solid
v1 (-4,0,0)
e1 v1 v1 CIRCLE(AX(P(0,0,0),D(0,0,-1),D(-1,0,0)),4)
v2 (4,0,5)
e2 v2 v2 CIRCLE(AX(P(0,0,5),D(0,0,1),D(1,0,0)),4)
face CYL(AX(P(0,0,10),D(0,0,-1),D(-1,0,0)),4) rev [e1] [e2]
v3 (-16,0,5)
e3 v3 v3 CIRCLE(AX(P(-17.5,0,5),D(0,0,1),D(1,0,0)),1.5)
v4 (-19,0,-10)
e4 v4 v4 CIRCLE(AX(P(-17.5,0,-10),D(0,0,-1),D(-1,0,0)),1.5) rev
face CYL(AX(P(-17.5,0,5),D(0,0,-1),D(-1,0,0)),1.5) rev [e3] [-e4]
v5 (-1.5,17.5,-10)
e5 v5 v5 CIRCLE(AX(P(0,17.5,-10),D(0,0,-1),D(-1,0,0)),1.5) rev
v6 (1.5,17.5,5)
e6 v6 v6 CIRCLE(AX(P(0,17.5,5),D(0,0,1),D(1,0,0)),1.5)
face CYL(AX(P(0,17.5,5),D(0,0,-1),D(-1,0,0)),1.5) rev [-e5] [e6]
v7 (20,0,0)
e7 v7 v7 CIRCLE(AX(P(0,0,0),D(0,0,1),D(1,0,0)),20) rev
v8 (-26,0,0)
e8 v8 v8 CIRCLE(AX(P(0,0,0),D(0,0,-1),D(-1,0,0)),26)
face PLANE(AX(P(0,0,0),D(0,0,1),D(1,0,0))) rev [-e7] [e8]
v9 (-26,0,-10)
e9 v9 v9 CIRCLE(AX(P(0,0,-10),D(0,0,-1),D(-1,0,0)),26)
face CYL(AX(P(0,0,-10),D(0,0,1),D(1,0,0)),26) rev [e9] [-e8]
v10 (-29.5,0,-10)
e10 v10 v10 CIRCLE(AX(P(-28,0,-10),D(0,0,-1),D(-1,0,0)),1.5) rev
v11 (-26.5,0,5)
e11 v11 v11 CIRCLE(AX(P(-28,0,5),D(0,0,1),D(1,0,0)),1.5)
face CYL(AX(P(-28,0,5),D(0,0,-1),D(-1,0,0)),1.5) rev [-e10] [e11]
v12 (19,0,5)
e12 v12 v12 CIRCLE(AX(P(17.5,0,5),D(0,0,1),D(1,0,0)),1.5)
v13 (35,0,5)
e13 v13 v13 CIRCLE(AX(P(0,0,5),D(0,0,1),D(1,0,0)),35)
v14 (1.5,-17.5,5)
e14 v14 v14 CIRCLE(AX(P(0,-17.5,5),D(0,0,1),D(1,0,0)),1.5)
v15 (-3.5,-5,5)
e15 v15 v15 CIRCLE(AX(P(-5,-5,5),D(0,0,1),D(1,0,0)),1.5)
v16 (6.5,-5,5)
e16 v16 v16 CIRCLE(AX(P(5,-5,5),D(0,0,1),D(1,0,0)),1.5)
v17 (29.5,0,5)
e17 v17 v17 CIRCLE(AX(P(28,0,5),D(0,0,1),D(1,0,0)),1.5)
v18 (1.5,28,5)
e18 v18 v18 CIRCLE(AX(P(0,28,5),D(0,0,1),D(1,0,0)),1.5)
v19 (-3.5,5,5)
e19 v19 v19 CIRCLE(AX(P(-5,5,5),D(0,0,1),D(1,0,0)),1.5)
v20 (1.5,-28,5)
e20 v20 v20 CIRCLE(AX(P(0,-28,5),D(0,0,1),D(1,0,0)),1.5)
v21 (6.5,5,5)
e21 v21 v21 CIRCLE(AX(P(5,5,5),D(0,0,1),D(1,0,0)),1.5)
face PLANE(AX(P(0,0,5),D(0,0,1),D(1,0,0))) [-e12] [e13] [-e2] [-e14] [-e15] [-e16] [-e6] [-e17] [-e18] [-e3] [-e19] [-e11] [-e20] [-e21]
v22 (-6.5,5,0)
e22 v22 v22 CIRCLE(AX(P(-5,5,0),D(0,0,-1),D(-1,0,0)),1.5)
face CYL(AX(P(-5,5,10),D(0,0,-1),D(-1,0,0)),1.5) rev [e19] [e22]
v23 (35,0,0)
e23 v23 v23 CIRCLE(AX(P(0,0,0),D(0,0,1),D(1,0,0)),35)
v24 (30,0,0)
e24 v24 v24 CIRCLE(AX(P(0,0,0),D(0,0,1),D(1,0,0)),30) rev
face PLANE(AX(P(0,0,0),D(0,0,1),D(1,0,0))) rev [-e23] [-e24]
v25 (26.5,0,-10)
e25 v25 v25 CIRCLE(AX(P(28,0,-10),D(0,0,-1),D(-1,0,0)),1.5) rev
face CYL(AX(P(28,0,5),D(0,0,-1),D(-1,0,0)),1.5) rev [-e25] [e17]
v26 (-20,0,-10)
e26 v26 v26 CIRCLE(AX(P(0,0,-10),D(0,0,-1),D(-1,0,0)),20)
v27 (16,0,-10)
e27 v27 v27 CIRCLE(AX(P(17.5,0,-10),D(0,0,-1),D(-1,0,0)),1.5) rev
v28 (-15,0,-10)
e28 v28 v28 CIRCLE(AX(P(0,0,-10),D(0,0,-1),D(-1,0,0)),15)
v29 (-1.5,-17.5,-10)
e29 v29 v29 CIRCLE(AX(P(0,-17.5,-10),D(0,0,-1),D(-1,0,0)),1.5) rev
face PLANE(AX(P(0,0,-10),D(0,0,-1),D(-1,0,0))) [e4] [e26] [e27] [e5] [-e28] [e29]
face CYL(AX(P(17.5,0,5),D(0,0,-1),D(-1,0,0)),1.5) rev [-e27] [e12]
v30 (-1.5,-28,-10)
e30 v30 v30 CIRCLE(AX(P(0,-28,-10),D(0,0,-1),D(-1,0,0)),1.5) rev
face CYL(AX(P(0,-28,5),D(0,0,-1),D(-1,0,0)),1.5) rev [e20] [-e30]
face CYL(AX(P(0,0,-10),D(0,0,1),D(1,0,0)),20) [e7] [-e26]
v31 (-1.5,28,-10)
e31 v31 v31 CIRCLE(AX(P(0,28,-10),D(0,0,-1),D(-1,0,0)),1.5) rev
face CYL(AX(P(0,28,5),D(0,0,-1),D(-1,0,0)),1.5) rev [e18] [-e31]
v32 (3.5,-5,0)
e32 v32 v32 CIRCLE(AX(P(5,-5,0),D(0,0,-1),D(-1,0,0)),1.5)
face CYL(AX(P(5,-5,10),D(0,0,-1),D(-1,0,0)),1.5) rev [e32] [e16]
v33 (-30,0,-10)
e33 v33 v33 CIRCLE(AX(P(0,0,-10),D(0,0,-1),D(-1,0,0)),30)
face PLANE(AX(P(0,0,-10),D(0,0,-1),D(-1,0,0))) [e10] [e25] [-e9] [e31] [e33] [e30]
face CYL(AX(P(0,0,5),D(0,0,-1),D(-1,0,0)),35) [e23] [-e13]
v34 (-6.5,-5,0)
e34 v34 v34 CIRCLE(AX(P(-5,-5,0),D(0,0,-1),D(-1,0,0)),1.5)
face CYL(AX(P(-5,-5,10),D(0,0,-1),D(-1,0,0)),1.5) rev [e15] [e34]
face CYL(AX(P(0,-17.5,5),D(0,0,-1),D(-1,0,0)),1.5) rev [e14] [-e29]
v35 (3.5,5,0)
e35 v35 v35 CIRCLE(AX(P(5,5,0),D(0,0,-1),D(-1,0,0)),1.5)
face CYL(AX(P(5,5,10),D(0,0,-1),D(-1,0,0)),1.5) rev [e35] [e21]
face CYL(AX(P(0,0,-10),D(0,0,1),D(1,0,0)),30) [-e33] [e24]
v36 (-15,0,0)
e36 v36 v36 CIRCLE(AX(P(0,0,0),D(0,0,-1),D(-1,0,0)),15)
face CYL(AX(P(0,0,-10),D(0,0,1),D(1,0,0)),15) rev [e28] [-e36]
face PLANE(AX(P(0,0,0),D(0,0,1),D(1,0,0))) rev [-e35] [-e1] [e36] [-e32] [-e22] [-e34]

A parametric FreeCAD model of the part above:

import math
import FreeCAD as App
import Part
import Sketcher
from FreeCAD import Vector

doc = App.newDocument("Part")
body = doc.addObject("PartDesign::Body", "Body")

sketch1 = body.newObject("Sketcher::SketchObject", "Sketch")
sketch1.AttachmentSupport = (doc.getObject("XY_Plane"), [""])
sketch1.MapMode = "FlatFace"
sketch1.addGeometry(Part.Circle(Vector(0, 0, 0), Vector(0, 0, 1), 35), False)
sketch1.addGeometry(Part.Circle(Vector(0, 28, 0), Vector(0, 0, 1), 1.5), False)
sketch1.addGeometry(Part.Circle(Vector(0, -28, 0), Vector(0, 0, 1), 1.5), False)
sketch1.addGeometry(Part.Circle(Vector(-28, 0, 0), Vector(0, 0, 1), 1.5), False)
sketch1.addGeometry(Part.Circle(Vector(28, 0, 0), Vector(0, 0, 1), 1.5), False)
sketch1.addGeometry(Part.Circle(Vector(0, 17.5, 0), Vector(0, 0, 1), 1.5), False)
sketch1.addGeometry(Part.Circle(Vector(0, -17.5, 0), Vector(0, 0, 1), 1.5), False)
sketch1.addGeometry(Part.Circle(Vector(-17.5, 0, 0), Vector(0, 0, 1), 1.5), False)
sketch1.addGeometry(Part.Circle(Vector(17.5, 0, 0), Vector(0, 0, 1), 1.5), False)
sketch1.addConstraint(Sketcher.Constraint("Coincident", 0, 3, -1, 1))
sketch1.addConstraint(Sketcher.Constraint("Equal", 1, 2))
sketch1.addConstraint(Sketcher.Constraint("Equal", 2, 3))
sketch1.addConstraint(Sketcher.Constraint("Equal", 3, 4))
sketch1.addConstraint(Sketcher.Constraint("Equal", 4, 5))
sketch1.addConstraint(Sketcher.Constraint("Equal", 5, 6))
sketch1.addConstraint(Sketcher.Constraint("Equal", 6, 7))
sketch1.addConstraint(Sketcher.Constraint("Equal", 7, 8))
sketch1.addConstraint(Sketcher.Constraint("Symmetric", 1, 3, 2, 3, -1, 1))
sketch1.addConstraint(Sketcher.Constraint("Symmetric", 3, 3, 4, 3, -1, 1))
sketch1.addConstraint(Sketcher.Constraint("Symmetric", 5, 3, 6, 3, -1, 1))
sketch1.addConstraint(Sketcher.Constraint("Symmetric", 7, 3, 8, 3, -1, 1))
sketch1.addConstraint(Sketcher.Constraint("PointOnObject", 1, 3, -2))
sketch1.addConstraint(Sketcher.Constraint("PointOnObject", 3, 3, -1))
sketch1.addConstraint(Sketcher.Constraint("PointOnObject", 5, 3, -2))
sketch1.addConstraint(Sketcher.Constraint("PointOnObject", 7, 3, -1))
sketch1.addConstraint(Sketcher.Constraint("Diameter", 0, 70.0))
sketch1.addConstraint(Sketcher.Constraint("Diameter", 1, 3.0))
sketch1.addConstraint(Sketcher.Constraint("DistanceY", -1, 1, 1, 3, 28.0))
sketch1.addConstraint(Sketcher.Constraint("DistanceX", 3, 3, -1, 1, 28.0))
sketch1.addConstraint(Sketcher.Constraint("DistanceY", 6, 3, 5, 3, 35.0))
sketch1.addConstraint(Sketcher.Constraint("DistanceX", 7, 3, -1, 1, 17.5))
pad1 = body.newObject("PartDesign::Pad", "Pad")
pad1.Profile = sketch1
pad1.Length = 5

sketch2 = body.newObject("Sketcher::SketchObject", "Sketch001")
sketch2.AttachmentSupport = (doc.getObject("XY_Plane"), [""])
sketch2.MapMode = "FlatFace"
sketch2.AttachmentOffset = App.Placement(Vector(0, 0, -10), App.Rotation())
sketch2.addGeometry(Part.Circle(Vector(0, 0, 0), Vector(0, 0, 1), 30), False)
sketch2.addGeometry(Part.Circle(Vector(-28, 0, 0), Vector(0, 0, 1), 1.5), False)
sketch2.addGeometry(Part.Circle(Vector(0, 28, 0), Vector(0, 0, 1), 1.5), False)
sketch2.addGeometry(Part.Circle(Vector(0, -28, 0), Vector(0, 0, 1), 1.5), False)
sketch2.addGeometry(Part.Circle(Vector(0, 0, 0), Vector(0, 0, 1), 26), False)
sketch2.addGeometry(Part.Circle(Vector(28, 0, 0), Vector(0, 0, 1), 1.5), False)
sketch2.addGeometry(Part.Circle(Vector(0, 0, 0), Vector(0, 0, 1), 20), False)
sketch2.addGeometry(Part.Circle(Vector(-17.5, 0, 0), Vector(0, 0, 1), 1.5), False)
sketch2.addGeometry(Part.Circle(Vector(0, 17.5, 0), Vector(0, 0, 1), 1.5), False)
sketch2.addGeometry(Part.Circle(Vector(0, 0, 0), Vector(0, 0, 1), 15), False)
sketch2.addGeometry(Part.Circle(Vector(17.5, 0, 0), Vector(0, 0, 1), 1.5), False)
sketch2.addGeometry(Part.Circle(Vector(0, -17.5, 0), Vector(0, 0, 1), 1.5), False)
sketch2.addConstraint(Sketcher.Constraint("Coincident", 0, 3, -1, 1))
sketch2.addConstraint(Sketcher.Constraint("Coincident", 4, 3, -1, 1))
sketch2.addConstraint(Sketcher.Constraint("Coincident", 6, 3, -1, 1))
sketch2.addConstraint(Sketcher.Constraint("Coincident", 9, 3, -1, 1))
sketch2.addConstraint(Sketcher.Constraint("Equal", 1, 2))
sketch2.addConstraint(Sketcher.Constraint("Equal", 2, 3))
sketch2.addConstraint(Sketcher.Constraint("Equal", 3, 5))
sketch2.addConstraint(Sketcher.Constraint("Equal", 5, 7))
sketch2.addConstraint(Sketcher.Constraint("Equal", 7, 8))
sketch2.addConstraint(Sketcher.Constraint("Equal", 8, 10))
sketch2.addConstraint(Sketcher.Constraint("Equal", 10, 11))
sketch2.addConstraint(Sketcher.Constraint("Symmetric", 2, 3, 3, 3, -1, 1))
sketch2.addConstraint(Sketcher.Constraint("Symmetric", 1, 3, 5, 3, -1, 1))
sketch2.addConstraint(Sketcher.Constraint("Symmetric", 7, 3, 10, 3, -1, 1))
sketch2.addConstraint(Sketcher.Constraint("Symmetric", 8, 3, 11, 3, -1, 1))
sketch2.addConstraint(Sketcher.Constraint("PointOnObject", 1, 3, -1))
sketch2.addConstraint(Sketcher.Constraint("PointOnObject", 2, 3, -2))
sketch2.addConstraint(Sketcher.Constraint("PointOnObject", 7, 3, -1))
sketch2.addConstraint(Sketcher.Constraint("PointOnObject", 8, 3, -2))
sketch2.addConstraint(Sketcher.Constraint("Diameter", 0, 60.0))
sketch2.addConstraint(Sketcher.Constraint("Diameter", 1, 3.0))
sketch2.addConstraint(Sketcher.Constraint("Diameter", 4, 52.0))
sketch2.addConstraint(Sketcher.Constraint("Diameter", 6, 40.0))
sketch2.addConstraint(Sketcher.Constraint("Diameter", 9, 30.0))
sketch2.addConstraint(Sketcher.Constraint("DistanceX", 1, 3, -1, 1, 28.0))
sketch2.addConstraint(Sketcher.Constraint("DistanceY", -1, 1, 2, 3, 28.0))
sketch2.addConstraint(Sketcher.Constraint("DistanceX", 7, 3, -1, 1, 17.5))
sketch2.addConstraint(Sketcher.Constraint("DistanceY", -1, 1, 8, 3, 17.5))
pad2 = body.newObject("PartDesign::Pad", "Pad001")
pad2.Profile = sketch2
pad2.Length = 10

sketch3 = body.newObject("Sketcher::SketchObject", "Sketch002")
sketch3.AttachmentSupport = (doc.getObject("XY_Plane"), [""])
sketch3.MapMode = "FlatFace"
sketch3.addGeometry(Part.ArcOfCircle(Part.Circle(Vector(5, 5, 0), Vector(0, 0, 1), 1.5), math.radians(-90), math.radians(180)), False)
sketch3.addGeometry(Part.LineSegment(Vector(5, 3.5, 0), Vector(5, 5, 0)), False)
sketch3.addGeometry(Part.LineSegment(Vector(5, 5, 0), Vector(3.5, 5, 0)), False)
sketch3.addGeometry(Part.LineSegment(Vector(5, 5, 0), Vector(5, 3.5, 0)), False)
sketch3.addGeometry(Part.ArcOfCircle(Part.Circle(Vector(5, 5, 0), Vector(0, 0, 1), 1.5), math.radians(180), math.radians(270)), False)
sketch3.addGeometry(Part.LineSegment(Vector(3.5, 5, 0), Vector(5, 5, 0)), False)
sketch3.addGeometry(Part.Circle(Vector(0, 0, 0), Vector(0, 0, 1), 4), False)
sketch3.addGeometry(Part.Circle(Vector(5, -5, 0), Vector(0, 0, 1), 1.5), False)
sketch3.addGeometry(Part.Circle(Vector(-5, -5, 0), Vector(0, 0, 1), 1.5), False)
sketch3.addGeometry(Part.Circle(Vector(-5, 5, 0), Vector(0, 0, 1), 1.5), False)
sketch3.addConstraint(Sketcher.Constraint("Coincident", 0, 1, 1, 1))
sketch3.addConstraint(Sketcher.Constraint("Coincident", 1, 2, 2, 1))
sketch3.addConstraint(Sketcher.Constraint("Coincident", 2, 2, 0, 2))
sketch3.addConstraint(Sketcher.Constraint("Coincident", 3, 2, 4, 2))
sketch3.addConstraint(Sketcher.Constraint("Coincident", 4, 1, 5, 1))
sketch3.addConstraint(Sketcher.Constraint("Coincident", 5, 2, 3, 1))
sketch3.addConstraint(Sketcher.Constraint("Vertical", 1))
sketch3.addConstraint(Sketcher.Constraint("Horizontal", 2))
sketch3.addConstraint(Sketcher.Constraint("Vertical", 3))
sketch3.addConstraint(Sketcher.Constraint("Horizontal", 5))
sketch3.addConstraint(Sketcher.Constraint("Coincident", 6, 3, -1, 1))
sketch3.addConstraint(Sketcher.Constraint("Coincident", 4, 3, 0, 3))
sketch3.addConstraint(Sketcher.Constraint("Coincident", 1, 2, 0, 3))
sketch3.addConstraint(Sketcher.Constraint("Coincident", 3, 2, 0, 1))
sketch3.addConstraint(Sketcher.Constraint("Equal", 4, 7))
sketch3.addConstraint(Sketcher.Constraint("Equal", 7, 8))
sketch3.addConstraint(Sketcher.Constraint("Equal", 8, 9))
sketch3.addConstraint(Sketcher.Constraint("Symmetric", 0, 3, 8, 3, -1, 1))
sketch3.addConstraint(Sketcher.Constraint("Symmetric", 7, 3, 9, 3, -1, 1))
sketch3.addConstraint(Sketcher.Constraint("Symmetric", 7, 3, 8, 3, -2))
sketch3.addConstraint(Sketcher.Constraint("Horizontal", 1, 2, 4, 1))
sketch3.addConstraint(Sketcher.Constraint("Diameter", 6, 8.0))
sketch3.addConstraint(Sketcher.Constraint("Diameter", 7, 3.0))
sketch3.addConstraint(Sketcher.Constraint("DistanceX", -1, 1, 0, 3, 5.0))
sketch3.addConstraint(Sketcher.Constraint("DistanceY", -1, 1, 0, 3, 5.0))
pocket1 = body.newObject("PartDesign::Pocket", "Pocket")
pocket1.Profile = sketch3
pocket1.Length = 10
pocket1.Reversed = True

doc.recompute()
